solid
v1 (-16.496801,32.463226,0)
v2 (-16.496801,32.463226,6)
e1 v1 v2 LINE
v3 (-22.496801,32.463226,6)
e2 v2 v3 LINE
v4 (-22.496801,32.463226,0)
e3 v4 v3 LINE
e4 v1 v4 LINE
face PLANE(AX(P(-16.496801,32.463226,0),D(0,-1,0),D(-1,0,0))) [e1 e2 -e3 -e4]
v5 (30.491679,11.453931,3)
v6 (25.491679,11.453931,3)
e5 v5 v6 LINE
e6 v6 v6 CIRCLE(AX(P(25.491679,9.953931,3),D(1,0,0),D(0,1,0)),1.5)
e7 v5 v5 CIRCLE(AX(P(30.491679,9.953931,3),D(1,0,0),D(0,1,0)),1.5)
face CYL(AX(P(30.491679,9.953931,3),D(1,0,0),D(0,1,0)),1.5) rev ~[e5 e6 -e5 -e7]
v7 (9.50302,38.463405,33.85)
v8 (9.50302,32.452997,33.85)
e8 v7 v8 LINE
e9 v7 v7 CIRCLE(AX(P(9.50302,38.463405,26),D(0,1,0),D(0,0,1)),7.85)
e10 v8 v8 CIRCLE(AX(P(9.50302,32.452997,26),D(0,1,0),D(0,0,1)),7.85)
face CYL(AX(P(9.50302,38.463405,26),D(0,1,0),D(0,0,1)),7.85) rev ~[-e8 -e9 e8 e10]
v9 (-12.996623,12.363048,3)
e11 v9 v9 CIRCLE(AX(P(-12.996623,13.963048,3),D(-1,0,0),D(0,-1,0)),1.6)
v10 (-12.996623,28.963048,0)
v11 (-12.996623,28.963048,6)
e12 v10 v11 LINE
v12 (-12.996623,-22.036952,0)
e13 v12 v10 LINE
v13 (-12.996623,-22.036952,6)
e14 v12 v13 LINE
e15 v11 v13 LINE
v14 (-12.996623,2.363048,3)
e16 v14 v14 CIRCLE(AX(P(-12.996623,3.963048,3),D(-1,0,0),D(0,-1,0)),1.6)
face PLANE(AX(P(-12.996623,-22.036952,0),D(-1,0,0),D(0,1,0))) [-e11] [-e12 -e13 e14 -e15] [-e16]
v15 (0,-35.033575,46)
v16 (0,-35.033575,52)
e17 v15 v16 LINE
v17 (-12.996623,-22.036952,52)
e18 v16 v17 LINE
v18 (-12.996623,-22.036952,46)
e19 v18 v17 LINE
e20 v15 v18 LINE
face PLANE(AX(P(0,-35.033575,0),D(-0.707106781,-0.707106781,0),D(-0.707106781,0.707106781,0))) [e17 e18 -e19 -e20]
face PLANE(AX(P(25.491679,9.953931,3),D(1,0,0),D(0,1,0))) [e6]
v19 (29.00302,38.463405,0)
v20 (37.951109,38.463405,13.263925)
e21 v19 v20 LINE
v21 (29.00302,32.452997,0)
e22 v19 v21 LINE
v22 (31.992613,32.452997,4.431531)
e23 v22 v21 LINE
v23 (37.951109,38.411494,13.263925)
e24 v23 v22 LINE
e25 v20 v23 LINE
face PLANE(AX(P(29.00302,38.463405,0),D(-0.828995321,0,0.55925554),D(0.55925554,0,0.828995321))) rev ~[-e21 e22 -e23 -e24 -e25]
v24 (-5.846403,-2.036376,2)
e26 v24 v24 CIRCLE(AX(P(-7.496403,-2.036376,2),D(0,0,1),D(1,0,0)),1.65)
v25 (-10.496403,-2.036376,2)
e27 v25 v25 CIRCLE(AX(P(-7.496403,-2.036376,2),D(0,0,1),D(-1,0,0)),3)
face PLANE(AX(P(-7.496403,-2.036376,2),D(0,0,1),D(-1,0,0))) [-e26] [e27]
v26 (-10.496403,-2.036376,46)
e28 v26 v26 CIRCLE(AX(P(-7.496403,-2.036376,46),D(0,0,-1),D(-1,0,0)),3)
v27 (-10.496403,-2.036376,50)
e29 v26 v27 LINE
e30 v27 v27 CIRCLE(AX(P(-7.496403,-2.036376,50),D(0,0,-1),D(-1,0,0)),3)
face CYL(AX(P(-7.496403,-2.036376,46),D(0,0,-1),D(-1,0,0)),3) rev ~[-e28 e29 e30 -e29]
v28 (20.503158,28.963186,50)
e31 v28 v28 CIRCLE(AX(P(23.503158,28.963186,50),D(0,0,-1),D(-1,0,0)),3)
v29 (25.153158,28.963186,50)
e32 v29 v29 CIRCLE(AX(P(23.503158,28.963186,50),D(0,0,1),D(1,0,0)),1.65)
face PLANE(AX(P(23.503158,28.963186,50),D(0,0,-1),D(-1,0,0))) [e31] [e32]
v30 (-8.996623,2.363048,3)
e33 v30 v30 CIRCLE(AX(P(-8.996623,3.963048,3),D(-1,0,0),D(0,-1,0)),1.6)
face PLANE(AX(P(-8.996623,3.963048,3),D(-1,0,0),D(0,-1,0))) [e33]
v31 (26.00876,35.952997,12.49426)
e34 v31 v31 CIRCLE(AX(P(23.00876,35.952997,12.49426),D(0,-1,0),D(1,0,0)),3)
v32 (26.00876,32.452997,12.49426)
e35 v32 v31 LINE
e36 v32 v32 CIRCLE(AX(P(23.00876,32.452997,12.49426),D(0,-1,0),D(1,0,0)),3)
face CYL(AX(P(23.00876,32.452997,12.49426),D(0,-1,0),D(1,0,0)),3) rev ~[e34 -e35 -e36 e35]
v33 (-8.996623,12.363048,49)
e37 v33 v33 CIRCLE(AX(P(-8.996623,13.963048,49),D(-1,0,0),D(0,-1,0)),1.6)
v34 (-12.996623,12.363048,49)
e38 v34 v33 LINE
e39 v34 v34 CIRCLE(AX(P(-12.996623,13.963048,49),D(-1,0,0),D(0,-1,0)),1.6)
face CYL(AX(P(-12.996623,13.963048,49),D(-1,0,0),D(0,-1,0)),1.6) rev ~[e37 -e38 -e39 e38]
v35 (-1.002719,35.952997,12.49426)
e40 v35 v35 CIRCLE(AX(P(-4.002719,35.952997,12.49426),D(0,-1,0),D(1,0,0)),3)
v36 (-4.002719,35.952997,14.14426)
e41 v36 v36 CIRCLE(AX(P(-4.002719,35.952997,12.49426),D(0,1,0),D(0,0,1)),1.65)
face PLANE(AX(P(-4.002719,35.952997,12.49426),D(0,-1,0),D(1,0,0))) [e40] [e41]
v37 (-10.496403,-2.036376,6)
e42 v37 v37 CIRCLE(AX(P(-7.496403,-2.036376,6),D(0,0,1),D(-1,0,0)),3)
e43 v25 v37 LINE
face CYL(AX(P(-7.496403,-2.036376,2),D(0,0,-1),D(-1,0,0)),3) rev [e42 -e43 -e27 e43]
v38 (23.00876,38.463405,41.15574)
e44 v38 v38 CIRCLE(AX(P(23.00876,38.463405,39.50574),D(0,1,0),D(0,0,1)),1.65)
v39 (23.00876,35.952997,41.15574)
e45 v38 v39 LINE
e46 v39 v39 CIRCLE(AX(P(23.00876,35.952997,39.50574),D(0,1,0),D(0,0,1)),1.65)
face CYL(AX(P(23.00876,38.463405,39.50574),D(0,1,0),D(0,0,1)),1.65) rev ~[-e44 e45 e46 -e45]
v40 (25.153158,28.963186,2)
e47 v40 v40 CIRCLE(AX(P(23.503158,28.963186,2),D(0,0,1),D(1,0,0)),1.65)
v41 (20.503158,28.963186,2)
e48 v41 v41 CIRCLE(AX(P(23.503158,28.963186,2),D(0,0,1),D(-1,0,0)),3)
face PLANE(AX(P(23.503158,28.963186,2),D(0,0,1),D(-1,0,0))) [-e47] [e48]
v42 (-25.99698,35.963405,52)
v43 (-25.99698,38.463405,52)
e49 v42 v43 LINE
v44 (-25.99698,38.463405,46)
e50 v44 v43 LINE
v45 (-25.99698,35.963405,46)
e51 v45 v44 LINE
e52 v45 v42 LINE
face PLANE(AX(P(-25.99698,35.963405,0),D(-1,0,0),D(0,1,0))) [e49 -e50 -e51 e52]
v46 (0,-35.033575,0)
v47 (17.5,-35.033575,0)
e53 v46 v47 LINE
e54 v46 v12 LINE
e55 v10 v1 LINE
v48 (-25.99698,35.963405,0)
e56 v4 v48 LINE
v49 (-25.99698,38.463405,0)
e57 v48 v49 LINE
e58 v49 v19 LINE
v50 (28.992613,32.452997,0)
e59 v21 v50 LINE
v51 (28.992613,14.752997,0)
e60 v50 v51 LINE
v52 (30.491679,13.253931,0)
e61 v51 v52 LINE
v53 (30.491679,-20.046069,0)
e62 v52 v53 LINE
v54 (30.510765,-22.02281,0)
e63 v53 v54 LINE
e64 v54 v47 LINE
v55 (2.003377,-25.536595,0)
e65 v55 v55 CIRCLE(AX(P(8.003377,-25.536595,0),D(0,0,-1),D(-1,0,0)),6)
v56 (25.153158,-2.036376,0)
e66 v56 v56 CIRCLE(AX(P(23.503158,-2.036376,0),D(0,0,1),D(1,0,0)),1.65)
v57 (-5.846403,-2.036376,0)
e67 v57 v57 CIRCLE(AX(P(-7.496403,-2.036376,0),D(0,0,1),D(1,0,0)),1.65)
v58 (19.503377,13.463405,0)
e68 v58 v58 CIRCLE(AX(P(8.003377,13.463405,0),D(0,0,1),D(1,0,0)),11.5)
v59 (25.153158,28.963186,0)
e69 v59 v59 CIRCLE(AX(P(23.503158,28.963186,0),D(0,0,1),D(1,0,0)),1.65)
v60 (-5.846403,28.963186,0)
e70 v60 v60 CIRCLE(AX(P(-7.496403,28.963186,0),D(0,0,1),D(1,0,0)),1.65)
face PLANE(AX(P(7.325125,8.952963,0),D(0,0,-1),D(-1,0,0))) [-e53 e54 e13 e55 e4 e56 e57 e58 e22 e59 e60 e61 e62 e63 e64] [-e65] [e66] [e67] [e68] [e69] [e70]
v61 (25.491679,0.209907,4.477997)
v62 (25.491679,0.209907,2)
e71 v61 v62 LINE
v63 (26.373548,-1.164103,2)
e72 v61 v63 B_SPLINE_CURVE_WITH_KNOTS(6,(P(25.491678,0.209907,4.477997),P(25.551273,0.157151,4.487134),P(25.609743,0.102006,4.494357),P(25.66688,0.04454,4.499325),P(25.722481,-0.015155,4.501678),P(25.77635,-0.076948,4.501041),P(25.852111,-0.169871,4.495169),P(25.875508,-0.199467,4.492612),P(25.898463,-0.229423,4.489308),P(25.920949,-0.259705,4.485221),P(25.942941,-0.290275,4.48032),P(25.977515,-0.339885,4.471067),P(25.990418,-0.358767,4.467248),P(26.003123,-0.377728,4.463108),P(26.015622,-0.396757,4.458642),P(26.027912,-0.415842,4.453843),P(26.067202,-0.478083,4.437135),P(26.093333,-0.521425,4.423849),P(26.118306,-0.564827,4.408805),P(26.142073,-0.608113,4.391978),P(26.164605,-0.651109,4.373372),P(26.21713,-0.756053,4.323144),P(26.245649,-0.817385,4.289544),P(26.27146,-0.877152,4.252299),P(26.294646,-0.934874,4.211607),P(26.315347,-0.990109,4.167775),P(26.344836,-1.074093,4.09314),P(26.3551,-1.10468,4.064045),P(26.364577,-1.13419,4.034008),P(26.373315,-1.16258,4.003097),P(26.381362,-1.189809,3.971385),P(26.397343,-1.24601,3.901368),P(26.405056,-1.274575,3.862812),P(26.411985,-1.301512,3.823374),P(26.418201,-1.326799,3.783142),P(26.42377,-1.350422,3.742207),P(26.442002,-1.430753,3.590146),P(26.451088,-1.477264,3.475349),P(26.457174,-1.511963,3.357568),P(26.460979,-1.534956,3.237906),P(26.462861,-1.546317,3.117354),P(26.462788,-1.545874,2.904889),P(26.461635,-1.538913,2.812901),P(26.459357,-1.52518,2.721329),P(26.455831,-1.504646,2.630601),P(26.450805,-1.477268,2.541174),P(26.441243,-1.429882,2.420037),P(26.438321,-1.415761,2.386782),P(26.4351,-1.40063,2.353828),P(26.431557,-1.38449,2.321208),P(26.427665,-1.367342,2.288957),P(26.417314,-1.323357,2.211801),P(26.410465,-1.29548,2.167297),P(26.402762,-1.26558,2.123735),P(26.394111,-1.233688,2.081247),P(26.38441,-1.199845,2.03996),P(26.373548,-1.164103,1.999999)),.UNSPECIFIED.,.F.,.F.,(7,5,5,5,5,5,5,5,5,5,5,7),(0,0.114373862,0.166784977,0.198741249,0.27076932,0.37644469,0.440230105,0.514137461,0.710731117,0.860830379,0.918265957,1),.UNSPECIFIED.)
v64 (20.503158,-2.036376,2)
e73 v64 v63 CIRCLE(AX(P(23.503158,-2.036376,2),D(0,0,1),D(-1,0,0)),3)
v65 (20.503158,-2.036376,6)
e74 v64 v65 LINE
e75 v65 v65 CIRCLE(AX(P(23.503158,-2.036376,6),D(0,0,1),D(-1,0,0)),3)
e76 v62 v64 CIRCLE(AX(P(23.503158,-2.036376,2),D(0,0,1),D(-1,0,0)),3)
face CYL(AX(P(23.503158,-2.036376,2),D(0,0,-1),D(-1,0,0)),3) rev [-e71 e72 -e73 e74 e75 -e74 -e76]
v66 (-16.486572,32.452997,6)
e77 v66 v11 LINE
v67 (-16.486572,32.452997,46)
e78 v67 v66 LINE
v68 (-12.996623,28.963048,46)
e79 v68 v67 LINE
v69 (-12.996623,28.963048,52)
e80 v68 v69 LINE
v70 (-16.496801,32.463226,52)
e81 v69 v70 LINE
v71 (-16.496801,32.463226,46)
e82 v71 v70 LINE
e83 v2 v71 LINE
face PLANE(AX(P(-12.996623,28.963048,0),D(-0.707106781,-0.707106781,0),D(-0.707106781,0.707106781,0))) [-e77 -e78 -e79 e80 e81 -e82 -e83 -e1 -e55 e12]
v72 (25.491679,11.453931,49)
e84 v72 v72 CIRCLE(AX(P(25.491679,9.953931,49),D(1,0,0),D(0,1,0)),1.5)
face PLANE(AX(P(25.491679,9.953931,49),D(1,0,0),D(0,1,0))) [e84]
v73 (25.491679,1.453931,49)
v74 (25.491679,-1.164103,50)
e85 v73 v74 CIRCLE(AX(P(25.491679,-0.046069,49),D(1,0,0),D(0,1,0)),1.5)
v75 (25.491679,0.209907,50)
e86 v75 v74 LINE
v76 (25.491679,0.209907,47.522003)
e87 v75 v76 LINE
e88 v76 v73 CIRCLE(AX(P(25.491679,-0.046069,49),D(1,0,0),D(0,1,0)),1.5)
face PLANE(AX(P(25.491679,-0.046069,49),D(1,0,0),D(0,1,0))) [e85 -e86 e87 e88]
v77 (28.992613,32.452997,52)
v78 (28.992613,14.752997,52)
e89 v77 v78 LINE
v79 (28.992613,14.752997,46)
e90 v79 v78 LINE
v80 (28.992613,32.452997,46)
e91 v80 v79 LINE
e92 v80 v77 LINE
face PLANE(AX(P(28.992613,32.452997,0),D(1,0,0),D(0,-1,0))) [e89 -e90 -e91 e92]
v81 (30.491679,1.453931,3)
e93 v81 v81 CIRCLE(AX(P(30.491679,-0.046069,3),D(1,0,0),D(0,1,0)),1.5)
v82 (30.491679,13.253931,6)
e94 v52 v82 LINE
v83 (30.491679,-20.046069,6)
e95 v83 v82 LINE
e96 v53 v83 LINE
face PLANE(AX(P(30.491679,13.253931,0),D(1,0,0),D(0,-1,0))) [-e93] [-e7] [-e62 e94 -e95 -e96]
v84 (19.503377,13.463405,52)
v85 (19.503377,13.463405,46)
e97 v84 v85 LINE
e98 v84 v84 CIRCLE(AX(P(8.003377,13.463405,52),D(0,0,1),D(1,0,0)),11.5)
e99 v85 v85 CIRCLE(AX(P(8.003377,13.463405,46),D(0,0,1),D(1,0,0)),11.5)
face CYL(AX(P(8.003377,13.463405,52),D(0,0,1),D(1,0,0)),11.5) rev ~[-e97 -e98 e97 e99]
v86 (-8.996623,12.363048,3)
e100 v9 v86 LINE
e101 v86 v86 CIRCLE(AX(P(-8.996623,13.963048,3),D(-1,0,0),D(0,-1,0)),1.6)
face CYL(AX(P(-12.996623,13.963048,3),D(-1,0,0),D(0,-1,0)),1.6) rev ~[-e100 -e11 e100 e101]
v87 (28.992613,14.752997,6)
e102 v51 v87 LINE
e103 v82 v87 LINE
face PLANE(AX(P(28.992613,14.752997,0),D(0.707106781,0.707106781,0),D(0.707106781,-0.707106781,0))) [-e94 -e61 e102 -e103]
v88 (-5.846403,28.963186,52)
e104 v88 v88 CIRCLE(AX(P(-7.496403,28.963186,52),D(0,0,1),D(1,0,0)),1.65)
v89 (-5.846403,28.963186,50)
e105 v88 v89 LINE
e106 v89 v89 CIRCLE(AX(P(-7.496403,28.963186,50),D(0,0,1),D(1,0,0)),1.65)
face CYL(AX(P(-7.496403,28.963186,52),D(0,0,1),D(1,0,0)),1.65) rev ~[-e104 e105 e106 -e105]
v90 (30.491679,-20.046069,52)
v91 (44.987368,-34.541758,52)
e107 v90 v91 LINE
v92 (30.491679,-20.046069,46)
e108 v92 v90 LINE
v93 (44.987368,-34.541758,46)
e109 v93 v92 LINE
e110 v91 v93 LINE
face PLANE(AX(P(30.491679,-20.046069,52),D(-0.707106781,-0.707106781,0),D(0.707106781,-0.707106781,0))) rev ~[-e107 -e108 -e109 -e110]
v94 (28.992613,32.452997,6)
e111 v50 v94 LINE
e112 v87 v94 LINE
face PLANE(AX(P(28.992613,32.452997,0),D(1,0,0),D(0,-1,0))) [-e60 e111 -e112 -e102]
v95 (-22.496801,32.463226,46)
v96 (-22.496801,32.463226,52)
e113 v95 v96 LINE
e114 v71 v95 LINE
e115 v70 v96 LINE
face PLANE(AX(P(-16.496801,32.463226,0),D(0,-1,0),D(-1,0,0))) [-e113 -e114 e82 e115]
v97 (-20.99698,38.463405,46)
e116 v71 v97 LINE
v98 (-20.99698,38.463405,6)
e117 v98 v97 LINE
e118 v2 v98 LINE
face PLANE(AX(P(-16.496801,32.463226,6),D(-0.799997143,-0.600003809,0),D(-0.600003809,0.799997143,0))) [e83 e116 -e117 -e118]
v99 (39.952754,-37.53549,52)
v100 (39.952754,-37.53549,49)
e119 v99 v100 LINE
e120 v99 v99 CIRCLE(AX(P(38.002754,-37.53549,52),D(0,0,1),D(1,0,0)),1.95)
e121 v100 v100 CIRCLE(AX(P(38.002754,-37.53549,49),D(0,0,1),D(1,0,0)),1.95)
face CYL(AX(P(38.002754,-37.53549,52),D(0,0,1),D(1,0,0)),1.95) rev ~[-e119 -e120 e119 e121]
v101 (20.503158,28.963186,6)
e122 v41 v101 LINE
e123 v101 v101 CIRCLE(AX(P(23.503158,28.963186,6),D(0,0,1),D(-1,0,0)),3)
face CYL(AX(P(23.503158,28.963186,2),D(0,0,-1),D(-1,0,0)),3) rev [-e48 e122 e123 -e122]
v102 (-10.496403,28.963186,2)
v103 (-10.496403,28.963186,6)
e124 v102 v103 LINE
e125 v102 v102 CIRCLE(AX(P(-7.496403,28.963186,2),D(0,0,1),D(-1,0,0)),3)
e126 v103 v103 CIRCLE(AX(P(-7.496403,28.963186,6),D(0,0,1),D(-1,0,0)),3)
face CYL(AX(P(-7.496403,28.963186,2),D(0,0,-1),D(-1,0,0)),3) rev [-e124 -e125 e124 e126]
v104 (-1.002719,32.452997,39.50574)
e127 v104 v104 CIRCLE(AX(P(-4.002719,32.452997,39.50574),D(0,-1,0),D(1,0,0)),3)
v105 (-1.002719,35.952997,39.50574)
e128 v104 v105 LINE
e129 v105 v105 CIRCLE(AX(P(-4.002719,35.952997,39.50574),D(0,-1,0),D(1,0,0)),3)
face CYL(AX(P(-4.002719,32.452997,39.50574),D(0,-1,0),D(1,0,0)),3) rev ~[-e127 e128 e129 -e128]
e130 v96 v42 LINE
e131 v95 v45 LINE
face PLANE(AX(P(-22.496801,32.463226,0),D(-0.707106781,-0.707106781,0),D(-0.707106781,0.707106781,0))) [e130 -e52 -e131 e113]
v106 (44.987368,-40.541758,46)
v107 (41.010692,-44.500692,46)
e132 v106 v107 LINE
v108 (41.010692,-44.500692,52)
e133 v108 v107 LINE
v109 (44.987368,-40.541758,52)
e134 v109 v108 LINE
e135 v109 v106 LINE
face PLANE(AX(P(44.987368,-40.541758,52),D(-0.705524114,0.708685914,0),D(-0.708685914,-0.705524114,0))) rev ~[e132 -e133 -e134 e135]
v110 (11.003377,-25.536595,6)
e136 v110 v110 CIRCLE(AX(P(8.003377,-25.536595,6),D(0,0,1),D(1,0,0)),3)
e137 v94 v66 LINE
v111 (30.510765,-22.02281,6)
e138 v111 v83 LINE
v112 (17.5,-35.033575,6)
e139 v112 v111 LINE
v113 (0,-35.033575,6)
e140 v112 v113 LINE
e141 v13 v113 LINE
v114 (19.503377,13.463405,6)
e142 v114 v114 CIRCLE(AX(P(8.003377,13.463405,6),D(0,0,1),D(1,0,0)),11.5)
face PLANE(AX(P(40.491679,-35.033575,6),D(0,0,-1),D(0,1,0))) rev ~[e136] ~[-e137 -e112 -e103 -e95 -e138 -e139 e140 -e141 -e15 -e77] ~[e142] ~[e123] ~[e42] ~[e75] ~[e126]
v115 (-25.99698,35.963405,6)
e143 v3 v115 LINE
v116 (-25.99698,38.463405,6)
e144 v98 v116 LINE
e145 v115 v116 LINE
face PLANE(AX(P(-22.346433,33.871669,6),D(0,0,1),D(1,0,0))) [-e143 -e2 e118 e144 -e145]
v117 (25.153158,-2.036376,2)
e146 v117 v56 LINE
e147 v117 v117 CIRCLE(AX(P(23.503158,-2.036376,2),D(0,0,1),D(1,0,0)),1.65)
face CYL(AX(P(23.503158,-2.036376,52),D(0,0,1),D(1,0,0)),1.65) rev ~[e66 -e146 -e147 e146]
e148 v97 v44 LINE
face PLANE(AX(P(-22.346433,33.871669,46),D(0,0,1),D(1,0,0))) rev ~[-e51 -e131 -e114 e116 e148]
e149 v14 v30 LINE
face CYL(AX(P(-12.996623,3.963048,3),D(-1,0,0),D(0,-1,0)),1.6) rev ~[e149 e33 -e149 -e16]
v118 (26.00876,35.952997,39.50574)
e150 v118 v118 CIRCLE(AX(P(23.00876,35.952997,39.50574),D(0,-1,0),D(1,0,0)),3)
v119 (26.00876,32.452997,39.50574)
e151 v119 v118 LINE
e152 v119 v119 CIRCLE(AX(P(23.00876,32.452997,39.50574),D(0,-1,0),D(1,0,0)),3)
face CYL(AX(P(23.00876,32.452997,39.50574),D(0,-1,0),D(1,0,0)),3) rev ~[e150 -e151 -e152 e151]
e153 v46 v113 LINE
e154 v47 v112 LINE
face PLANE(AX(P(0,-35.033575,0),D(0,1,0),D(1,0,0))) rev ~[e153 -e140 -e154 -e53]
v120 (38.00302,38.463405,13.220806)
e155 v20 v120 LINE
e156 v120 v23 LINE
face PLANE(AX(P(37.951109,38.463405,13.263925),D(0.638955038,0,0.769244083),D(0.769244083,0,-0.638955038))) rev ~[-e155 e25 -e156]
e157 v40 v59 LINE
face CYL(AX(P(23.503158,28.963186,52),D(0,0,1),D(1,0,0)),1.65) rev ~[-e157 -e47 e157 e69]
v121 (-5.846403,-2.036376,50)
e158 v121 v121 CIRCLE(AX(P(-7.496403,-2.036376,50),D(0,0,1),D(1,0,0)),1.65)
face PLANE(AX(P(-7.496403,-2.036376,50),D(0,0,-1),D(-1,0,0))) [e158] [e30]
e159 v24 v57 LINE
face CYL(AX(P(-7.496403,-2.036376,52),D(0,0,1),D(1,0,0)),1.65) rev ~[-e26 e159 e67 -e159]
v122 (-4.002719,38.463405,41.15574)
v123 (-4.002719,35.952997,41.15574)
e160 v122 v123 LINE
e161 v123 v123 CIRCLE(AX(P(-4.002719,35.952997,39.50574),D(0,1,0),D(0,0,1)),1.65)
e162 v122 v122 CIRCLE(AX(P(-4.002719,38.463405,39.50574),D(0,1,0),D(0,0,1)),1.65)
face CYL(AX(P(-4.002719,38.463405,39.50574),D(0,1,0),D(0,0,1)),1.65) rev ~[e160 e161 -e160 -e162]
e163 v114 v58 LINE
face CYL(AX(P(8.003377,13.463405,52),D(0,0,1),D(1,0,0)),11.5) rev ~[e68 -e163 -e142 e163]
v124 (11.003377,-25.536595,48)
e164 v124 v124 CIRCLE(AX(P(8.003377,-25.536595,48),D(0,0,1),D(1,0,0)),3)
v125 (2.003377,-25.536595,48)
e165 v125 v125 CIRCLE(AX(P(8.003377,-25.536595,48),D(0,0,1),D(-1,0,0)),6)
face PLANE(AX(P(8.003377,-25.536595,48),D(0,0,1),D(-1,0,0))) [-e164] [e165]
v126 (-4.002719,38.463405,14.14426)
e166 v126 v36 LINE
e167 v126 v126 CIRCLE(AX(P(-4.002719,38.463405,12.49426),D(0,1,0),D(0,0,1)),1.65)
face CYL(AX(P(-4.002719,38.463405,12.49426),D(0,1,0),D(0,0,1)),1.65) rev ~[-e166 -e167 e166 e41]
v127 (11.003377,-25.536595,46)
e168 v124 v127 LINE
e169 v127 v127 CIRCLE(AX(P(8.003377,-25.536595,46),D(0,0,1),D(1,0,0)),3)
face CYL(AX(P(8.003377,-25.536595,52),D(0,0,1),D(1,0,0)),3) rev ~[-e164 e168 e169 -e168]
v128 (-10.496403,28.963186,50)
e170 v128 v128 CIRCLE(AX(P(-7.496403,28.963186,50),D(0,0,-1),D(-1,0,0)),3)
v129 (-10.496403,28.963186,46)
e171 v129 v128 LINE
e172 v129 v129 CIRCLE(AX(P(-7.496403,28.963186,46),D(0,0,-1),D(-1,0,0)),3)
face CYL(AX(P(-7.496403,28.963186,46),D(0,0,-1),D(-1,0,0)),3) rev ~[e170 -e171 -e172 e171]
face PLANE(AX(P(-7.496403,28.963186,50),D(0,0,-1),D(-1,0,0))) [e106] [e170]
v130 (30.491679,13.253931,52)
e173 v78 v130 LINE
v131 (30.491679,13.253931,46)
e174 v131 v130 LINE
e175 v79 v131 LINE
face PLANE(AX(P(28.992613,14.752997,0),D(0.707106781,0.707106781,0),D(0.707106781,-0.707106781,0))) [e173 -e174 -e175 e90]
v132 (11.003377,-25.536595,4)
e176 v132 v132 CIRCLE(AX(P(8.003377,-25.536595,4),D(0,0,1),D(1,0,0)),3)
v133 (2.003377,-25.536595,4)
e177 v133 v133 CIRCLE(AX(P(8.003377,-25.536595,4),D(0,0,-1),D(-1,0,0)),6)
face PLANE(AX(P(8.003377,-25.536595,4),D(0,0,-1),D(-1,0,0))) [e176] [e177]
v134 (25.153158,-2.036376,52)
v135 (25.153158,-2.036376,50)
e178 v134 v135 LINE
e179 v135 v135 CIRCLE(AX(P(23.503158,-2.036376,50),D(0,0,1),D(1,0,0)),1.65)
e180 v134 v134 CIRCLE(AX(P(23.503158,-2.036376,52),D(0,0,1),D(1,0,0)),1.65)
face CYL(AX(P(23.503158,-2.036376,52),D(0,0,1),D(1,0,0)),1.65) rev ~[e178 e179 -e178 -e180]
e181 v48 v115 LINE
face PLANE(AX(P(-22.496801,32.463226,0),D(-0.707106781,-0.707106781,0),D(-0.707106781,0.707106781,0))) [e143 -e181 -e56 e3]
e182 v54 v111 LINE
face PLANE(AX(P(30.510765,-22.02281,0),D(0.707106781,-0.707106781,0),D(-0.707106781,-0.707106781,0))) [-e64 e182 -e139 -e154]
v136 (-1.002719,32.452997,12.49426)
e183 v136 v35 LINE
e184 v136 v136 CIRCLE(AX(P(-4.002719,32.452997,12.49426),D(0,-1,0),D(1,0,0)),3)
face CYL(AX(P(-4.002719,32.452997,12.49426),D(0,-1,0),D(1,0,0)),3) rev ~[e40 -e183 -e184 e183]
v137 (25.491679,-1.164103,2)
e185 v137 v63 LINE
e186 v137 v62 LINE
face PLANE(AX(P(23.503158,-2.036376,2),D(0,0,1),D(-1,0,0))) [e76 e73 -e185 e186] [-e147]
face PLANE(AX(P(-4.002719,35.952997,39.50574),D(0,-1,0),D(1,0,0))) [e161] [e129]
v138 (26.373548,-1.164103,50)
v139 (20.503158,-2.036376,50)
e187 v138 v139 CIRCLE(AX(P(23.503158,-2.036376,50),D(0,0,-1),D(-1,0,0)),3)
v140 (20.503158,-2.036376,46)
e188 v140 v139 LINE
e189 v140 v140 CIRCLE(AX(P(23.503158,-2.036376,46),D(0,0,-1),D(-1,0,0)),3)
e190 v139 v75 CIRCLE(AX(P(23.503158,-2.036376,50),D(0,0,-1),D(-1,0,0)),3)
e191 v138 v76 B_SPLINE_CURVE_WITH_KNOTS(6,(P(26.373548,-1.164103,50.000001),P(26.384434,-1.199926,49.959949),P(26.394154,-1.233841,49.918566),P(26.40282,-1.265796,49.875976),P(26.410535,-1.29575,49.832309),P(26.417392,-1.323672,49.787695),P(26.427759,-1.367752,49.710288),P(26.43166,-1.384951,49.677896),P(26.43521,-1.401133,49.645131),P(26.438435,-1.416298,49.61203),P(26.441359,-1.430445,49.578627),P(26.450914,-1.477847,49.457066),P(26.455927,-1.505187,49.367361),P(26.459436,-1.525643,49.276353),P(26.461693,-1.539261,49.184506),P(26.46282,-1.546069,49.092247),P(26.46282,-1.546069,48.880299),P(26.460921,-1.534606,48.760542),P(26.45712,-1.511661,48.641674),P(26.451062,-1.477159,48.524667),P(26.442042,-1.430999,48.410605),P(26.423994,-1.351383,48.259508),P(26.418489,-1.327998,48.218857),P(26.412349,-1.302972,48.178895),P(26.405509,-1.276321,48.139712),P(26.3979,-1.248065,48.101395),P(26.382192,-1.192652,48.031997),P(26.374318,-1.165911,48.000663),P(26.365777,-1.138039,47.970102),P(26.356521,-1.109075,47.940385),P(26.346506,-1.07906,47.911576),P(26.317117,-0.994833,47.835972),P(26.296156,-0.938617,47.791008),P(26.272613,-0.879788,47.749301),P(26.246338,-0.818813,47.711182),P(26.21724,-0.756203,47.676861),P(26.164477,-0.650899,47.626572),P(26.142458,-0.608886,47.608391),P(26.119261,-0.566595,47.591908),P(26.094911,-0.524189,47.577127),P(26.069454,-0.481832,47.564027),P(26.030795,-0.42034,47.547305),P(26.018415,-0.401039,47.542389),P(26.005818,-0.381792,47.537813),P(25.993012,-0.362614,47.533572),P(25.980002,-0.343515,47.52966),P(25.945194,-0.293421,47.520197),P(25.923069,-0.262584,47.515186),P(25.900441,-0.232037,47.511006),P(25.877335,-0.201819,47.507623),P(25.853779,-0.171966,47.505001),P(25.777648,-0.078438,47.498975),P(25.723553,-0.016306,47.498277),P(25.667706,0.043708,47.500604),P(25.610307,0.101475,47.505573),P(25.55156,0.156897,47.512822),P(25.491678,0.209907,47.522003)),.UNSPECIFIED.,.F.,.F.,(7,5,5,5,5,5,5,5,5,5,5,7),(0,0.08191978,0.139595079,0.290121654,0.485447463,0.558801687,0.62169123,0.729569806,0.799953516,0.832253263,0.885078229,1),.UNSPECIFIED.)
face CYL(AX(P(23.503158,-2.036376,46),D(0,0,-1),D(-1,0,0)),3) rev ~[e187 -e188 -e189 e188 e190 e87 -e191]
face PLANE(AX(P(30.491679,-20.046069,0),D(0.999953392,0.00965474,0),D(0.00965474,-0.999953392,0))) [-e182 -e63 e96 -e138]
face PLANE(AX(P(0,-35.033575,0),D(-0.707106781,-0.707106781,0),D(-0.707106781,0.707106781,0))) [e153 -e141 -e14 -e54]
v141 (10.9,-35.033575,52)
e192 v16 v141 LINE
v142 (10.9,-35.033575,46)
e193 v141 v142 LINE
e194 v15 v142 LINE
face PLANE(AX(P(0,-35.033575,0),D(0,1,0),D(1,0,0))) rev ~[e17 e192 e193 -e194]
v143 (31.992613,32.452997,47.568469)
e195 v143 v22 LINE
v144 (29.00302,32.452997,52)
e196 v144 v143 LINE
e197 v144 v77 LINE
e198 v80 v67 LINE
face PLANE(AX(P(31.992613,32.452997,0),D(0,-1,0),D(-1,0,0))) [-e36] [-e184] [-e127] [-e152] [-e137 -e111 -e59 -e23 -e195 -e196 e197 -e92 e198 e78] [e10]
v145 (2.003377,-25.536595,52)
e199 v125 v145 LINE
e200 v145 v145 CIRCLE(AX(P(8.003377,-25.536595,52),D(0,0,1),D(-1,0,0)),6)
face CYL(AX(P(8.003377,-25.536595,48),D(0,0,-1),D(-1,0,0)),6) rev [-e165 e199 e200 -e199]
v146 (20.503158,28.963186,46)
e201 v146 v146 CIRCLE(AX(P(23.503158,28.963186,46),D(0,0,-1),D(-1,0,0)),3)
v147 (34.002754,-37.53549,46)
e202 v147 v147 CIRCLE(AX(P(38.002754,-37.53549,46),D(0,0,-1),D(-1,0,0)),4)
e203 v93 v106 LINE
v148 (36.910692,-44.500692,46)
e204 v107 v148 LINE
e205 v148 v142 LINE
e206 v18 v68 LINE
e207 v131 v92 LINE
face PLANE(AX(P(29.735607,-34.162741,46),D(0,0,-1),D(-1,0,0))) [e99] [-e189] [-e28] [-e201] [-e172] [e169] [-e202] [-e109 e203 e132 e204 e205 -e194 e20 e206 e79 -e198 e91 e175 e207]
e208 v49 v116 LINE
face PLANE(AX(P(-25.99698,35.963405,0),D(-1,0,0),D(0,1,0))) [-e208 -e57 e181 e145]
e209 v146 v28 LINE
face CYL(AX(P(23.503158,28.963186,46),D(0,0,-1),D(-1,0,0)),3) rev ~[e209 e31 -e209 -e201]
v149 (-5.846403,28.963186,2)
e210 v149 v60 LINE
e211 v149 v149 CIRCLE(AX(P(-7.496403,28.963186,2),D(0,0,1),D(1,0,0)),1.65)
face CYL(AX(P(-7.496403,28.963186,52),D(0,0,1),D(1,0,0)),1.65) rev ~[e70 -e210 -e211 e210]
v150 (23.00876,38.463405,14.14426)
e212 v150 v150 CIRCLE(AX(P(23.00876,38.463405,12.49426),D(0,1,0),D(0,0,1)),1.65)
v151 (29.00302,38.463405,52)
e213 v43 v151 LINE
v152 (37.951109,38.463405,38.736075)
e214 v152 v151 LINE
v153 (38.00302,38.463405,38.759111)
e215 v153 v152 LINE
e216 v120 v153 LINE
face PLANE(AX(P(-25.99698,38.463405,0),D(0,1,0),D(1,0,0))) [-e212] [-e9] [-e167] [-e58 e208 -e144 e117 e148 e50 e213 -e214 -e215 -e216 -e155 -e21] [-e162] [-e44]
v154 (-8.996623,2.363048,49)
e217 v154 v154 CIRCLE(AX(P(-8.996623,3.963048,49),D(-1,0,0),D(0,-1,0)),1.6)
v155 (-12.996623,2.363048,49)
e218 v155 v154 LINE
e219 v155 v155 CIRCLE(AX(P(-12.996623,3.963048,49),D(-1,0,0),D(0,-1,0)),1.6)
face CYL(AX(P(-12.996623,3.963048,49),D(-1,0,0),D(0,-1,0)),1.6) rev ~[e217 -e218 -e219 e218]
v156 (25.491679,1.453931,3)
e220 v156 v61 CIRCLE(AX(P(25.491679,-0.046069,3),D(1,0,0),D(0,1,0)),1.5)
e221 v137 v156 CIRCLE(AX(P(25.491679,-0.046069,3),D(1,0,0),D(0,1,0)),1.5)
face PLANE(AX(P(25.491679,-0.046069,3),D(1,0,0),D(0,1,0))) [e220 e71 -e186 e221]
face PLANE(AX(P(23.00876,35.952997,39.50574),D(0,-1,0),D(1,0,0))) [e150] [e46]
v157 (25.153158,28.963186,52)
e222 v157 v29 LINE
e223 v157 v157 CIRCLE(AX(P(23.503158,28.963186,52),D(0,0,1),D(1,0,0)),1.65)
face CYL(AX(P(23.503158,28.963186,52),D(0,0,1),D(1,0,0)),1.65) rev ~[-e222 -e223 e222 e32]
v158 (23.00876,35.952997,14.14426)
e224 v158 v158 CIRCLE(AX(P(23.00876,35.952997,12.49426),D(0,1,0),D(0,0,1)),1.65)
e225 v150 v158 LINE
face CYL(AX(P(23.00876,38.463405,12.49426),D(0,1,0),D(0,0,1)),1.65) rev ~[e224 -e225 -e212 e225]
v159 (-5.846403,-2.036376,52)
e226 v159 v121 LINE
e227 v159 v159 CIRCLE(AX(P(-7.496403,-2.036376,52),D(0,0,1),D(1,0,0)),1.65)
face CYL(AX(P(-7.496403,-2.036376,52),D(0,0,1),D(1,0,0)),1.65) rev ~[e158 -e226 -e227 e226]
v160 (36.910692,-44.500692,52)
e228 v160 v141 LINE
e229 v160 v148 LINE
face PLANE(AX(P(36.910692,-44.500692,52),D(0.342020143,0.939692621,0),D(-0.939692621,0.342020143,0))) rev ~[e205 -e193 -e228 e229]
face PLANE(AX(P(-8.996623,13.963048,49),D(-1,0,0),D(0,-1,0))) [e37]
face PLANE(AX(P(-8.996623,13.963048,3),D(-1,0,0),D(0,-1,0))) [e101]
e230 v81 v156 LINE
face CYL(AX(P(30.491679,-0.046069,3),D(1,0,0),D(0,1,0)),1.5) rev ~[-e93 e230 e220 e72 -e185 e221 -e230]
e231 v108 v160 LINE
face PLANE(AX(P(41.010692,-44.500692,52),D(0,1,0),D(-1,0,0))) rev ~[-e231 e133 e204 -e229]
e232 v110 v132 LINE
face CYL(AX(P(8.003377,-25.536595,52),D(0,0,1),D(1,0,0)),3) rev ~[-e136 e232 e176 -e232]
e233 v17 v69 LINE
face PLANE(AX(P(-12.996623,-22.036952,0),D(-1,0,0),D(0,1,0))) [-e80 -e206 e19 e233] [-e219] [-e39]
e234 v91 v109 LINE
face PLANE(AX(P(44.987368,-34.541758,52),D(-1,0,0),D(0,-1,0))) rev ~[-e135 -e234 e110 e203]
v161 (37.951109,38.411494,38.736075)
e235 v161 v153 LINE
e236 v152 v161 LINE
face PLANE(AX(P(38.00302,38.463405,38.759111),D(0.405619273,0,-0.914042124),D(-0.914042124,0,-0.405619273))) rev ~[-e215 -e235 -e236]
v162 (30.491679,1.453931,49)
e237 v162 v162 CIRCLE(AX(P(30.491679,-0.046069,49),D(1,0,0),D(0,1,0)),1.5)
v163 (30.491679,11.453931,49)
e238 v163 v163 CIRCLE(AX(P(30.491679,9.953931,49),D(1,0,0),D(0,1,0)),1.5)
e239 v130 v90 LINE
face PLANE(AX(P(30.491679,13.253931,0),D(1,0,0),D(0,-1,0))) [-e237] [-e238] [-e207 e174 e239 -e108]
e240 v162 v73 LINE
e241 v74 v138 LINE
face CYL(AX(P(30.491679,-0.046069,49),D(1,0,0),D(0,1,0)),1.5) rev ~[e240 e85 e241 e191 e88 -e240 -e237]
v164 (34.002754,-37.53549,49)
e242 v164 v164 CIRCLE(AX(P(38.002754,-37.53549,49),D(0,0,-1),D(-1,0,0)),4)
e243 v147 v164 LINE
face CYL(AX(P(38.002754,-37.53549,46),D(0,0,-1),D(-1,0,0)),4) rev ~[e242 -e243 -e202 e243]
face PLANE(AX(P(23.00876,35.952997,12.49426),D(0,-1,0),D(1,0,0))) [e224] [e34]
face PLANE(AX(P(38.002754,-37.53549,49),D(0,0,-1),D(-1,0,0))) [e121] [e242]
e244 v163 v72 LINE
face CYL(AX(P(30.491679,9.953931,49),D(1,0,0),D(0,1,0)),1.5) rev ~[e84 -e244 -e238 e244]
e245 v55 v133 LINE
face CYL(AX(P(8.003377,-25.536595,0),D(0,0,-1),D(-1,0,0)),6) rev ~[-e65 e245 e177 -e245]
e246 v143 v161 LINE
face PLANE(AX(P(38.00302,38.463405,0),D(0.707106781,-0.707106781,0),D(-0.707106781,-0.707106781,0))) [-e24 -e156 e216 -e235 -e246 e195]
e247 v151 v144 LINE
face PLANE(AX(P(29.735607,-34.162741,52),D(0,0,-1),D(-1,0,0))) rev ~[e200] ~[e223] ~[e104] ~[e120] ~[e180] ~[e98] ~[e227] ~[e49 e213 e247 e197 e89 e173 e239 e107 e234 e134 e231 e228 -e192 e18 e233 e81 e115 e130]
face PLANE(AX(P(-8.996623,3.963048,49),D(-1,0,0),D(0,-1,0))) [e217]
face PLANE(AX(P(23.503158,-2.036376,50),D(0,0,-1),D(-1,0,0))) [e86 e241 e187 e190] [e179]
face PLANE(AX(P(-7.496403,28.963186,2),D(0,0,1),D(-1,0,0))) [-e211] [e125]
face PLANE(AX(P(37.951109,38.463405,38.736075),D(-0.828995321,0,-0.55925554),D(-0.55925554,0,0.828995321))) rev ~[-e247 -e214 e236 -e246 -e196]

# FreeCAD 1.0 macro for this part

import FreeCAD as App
import Part
import Sketcher
Q = App.Units.Quantity


def add_polygon(sketch, points):
    """Adds a closed chain of lines whose ends are joined by coincident constraints."""
    first, n = sketch.GeometryCount, len(points)
    for a, b in zip(points, points[1:] + points[:1]):
        sketch.addGeometry(Part.LineSegment(App.Vector(*a, 0), App.Vector(*b, 0)), False)
    for i in range(n):
        sketch.addConstraint(Sketcher.Constraint("Coincident", first + i, 2, first + (i + 1) % n, 1))

doc = App.newDocument("Part")
body = doc.addObject("PartDesign::Body", "Body")

# Sketch on XY plane
sketch1 = body.newObject("Sketcher::SketchObject", "Sketch")
sketch1.AttachmentSupport = (doc.getObject("XY_Plane"), [""])
sketch1.MapMode = "FlatFace"
add_polygon(sketch1, [(30.510765, -22.02281), (30.491679, -20.046069), (30.491679, 13.253931), (28.992613, 14.752997), (28.992613, 32.452997), (31.992613, 32.452997), (38.00302, 38.463405), (-25.99698, 38.463405), (-25.99698, 35.963405), (-22.496801, 32.463226), (-16.496801, 32.463226), (-12.996623, 28.963048), (-12.996623, -22.036952), (0, -35.033575), (17.5, -35.033575)])  # lines 0-14
sketch1.addConstraint([
    Sketcher.Constraint("Vertical", 1),
    Sketcher.Constraint("Vertical", 3),
    Sketcher.Constraint("Horizontal", 4),
    Sketcher.Constraint("Horizontal", 6),
    Sketcher.Constraint("Vertical", 7),
    Sketcher.Constraint("Horizontal", 9),
    Sketcher.Constraint("Vertical", 11),
    Sketcher.Constraint("Horizontal", 13),
    Sketcher.Constraint("PointOnObject", 12, 2, -2),
    Sketcher.Constraint("Perpendicular", 2, 5),
    Sketcher.Constraint("Perpendicular", 5, 8),
    Sketcher.Constraint("Parallel", 8, 10),
    Sketcher.Constraint("Parallel", 10, 12),
    Sketcher.Constraint("Perpendicular", 12, 14),
    Sketcher.Constraint("Equal", 8, 10),
    Sketcher.Constraint("DistanceX", 4, 1, 4, 2, Q("3 mm")),
    Sketcher.Constraint("DistanceX", 6, 2, 6, 1, Q("64 mm")),
    Sketcher.Constraint("DistanceX", 9, 1, 9, 2, Q("6 mm")),
    Sketcher.Constraint("DistanceY", 11, 2, 11, 1, Q("51 mm")),
    Sketcher.Constraint("Angle", 2, Q("135 deg")),
    Sketcher.Constraint("DistanceX", 13, 1, 13, 2, Q("17.5 mm")),
    Sketcher.Constraint("DistanceY", 1, 1, 1, 2, Q("33.3 mm")),
    Sketcher.Constraint("DistanceY", 3, 1, 3, 2, Q("17.7 mm")),
    Sketcher.Constraint("DistanceY", 7, 2, 7, 1, Q("2.5 mm")),
    Sketcher.Constraint("Distance", 5, Q("8.5 mm")),
    Sketcher.Constraint("Distance", 14, Q("18.4 mm")),
    Sketcher.Constraint("Distance", 2, Q("2.12 mm")),
    Sketcher.Constraint("Distance", 8, Q("4.95 mm")),
    Sketcher.Constraint("Distance", 12, Q("18.38 mm")),
    Sketcher.Constraint("DistanceY", 0, 2, -1, 1, Q("20.046069 mm")),
])
pad1 = body.newObject("PartDesign::Pad", "Pad")
pad1.Profile = sketch1
pad1.Length = 52

# Sketch on XY plane
sketch2 = body.newObject("Sketcher::SketchObject", "Sketch001")
sketch2.AttachmentSupport = (doc.getObject("XY_Plane"), [""])
sketch2.MapMode = "FlatFace"
sketch2.AttachmentOffset = App.Placement(App.Vector(0, 0, 52), App.Rotation())
add_polygon(sketch2, [(44.987368, -34.541758), (30.491679, -20.046069), (30.510765, -22.02281), (17.5, -35.033575), (10.9, -35.033575), (36.910692, -44.500692), (41.010692, -44.500692), (44.987368, -40.541758)])  # lines 0-7
sketch2.addConstraint([
    Sketcher.Constraint("Horizontal", 3),
    Sketcher.Constraint("Horizontal", 5),
    Sketcher.Constraint("Vertical", 7),
    Sketcher.Constraint("Perpendicular", 0, 2),
    Sketcher.Constraint("DistanceY", 7, 1, 7, 2, Q("6 mm")),
    Sketcher.Constraint("Angle", 0, Q("135 deg")),
    Sketcher.Constraint("Angle", 4, Q("-20 deg")),
    Sketcher.Constraint("DistanceX", 3, 2, 3, 1, Q("6.6 mm")),
    Sketcher.Constraint("DistanceX", 5, 1, 5, 2, Q("4.1 mm")),
    Sketcher.Constraint("Distance", 0, Q("20.5 mm")),
    Sketcher.Constraint("Distance", 2, Q("18.4 mm")),
    Sketcher.Constraint("DistanceX", -1, 1, 2, 2, Q("17.5 mm")),
    Sketcher.Constraint("Distance", 4, Q("27.68 mm")),
    Sketcher.Constraint("Distance", 6, Q("5.611338 mm")),
    Sketcher.Constraint("DistanceX", -1, 1, 0, 2, Q("30.491679 mm")),
    Sketcher.Constraint("DistanceY", 0, 2, -1, 1, Q("20.046069 mm")),
])
pad2 = body.newObject("PartDesign::Pad", "Pad001")
pad2.Profile = sketch2
pad2.Length = 6
pad2.Reversed = True

# Sketch on YZ plane
sketch3 = body.newObject("Sketcher::SketchObject", "Sketch002")
sketch3.AttachmentSupport = (doc.getObject("YZ_Plane"), [""])
sketch3.MapMode = "FlatFace"
sketch3.AttachmentOffset = App.Placement(App.Vector(0, 0, 40.491679), App.Rotation())
add_polygon(sketch3, [(32.452997, 46), (-49.83921, 46), (-35.033575, 6), (32.452997, 6)])  # lines 0-3
sketch3.addConstraint([
    Sketcher.Constraint("Horizontal", 0),
    Sketcher.Constraint("Horizontal", 2),
    Sketcher.Constraint("Vertical", 3),
    Sketcher.Constraint("DistanceY", 3, 1, 3, 2, Q("40 mm")),
    Sketcher.Constraint("DistanceY", -1, 1, 0, 2, Q("46 mm")),
    Sketcher.Constraint("Distance", 1, Q("42.652161 mm")),
    Sketcher.Constraint("DistanceX", 0, 2, 0, 1, Q("82.292207 mm")),
    Sketcher.Constraint("DistanceX", 0, 2, -1, 1, Q("49.83921 mm")),
])
pocket1 = body.newObject("PartDesign::Pocket", "Pocket")
pocket1.Profile = sketch3
pocket1.Length = 76

# Sketch on XZ plane
sketch4 = body.newObject("Sketcher::SketchObject", "Sketch003")
sketch4.AttachmentSupport = (doc.getObject("XZ_Plane"), [""])
sketch4.MapMode = "FlatFace"
sketch4.AttachmentOffset = App.Placement(App.Vector(0, 0, -38.463405), App.Rotation())
add_polygon(sketch4, [(38.00302, 0), (29.00302, 0), (37.951109, 13.263925), (38.00302, 13.220806)])  # lines 0-3
add_polygon(sketch4, [(37.951109, 38.736075), (29.00302, 52), (38.00302, 52), (38.00302, 38.759111)])  # lines 4-7
add_polygon(sketch4, [(-25.99698, 12), (-25.99698, 40), (-20.99698, 40), (-20.99698, 12)])  # lines 8-11
sketch4.addGeometry(Part.Circle(App.Vector(9.50302, 26, 0), App.Vector(0, 0, 1), 7.85), False)  # 12
sketch4.addGeometry(Part.Circle(App.Vector(-4.002719, 12.49426, 0), App.Vector(0, 0, 1), 1.65), False)  # 13
sketch4.addGeometry(Part.Circle(App.Vector(23.00876, 12.49426, 0), App.Vector(0, 0, 1), 1.65), False)  # 14
sketch4.addGeometry(Part.Circle(App.Vector(23.00876, 39.50574, 0), App.Vector(0, 0, 1), 1.65), False)  # 15
sketch4.addGeometry(Part.Circle(App.Vector(-4.002719, 39.50574, 0), App.Vector(0, 0, 1), 1.65), False)  # 16
sketch4.addConstraint([
    Sketcher.Constraint("Horizontal", 0),
    Sketcher.Constraint("Vertical", 3),
    Sketcher.Constraint("Horizontal", 5),
    Sketcher.Constraint("Vertical", 6),
    Sketcher.Constraint("Vertical", 8),
    Sketcher.Constraint("Horizontal", 9),
    Sketcher.Constraint("Vertical", 10),
    Sketcher.Constraint("Horizontal", 11),
    Sketcher.Constraint("Equal", 13, 14),
    Sketcher.Constraint("Equal", 14, 15),
    Sketcher.Constraint("Equal", 15, 16),
    Sketcher.Constraint("PointOnObject", 0, 2, -1),
    Sketcher.Constraint("Horizontal", 13, 3, 14, 3),
    Sketcher.Constraint("Horizontal", 15, 3, 16, 3),
    Sketcher.Constraint("Vertical", 14, 3, 15, 3),
    Sketcher.Constraint("Vertical", 13, 3, 16, 3),
    Sketcher.Constraint("Vertical", 0, 2, 4, 2),
    Sketcher.Constraint("Vertical", 3, 2, 5, 2),
    Sketcher.Constraint("Vertical", 1, 2, 7, 2),
    Sketcher.Constraint("Equal", 1, 4),
    Sketcher.Constraint("Diameter", 12, Q("15.7 mm")),
    Sketcher.Constraint("Diameter", 13, Q("3.3 mm")),
    Sketcher.Constraint("DistanceX", 0, 2, 0, 1, Q("9 mm")),
    Sketcher.Constraint("DistanceX", 9, 1, 9, 2, Q("5 mm")),
    Sketcher.Constraint("DistanceY", 8, 1, 8, 2, Q("28 mm")),
    Sketcher.Constraint("Distance", 1, Q("16 mm")),
    Sketcher.Constraint("DistanceY", -1, 1, 12, 3, Q("26 mm")),
    Sketcher.Constraint("DistanceY", -1, 1, 4, 2, Q("52 mm")),
    Sketcher.Constraint("DistanceY", -1, 1, 8, 2, Q("40 mm")),
    Sketcher.Constraint("DistanceX", 12, 3, 0, 2, Q("19.5 mm")),
    Sketcher.Constraint("DistanceX", 8, 2, 12, 3, Q("35.5 mm")),
    Sketcher.Constraint("DistanceY", 6, 2, 6, 1, Q("13.240889 mm")),
    Sketcher.Constraint("DistanceY", 3, 2, 3, 1, Q("13.220806 mm")),
    Sketcher.Constraint("DistanceX", -1, 1, 12, 3, Q("9.50302 mm")),
    Sketcher.Constraint("DistanceX", 13, 3, -1, 1, Q("4.002719 mm")),
    Sketcher.Constraint("DistanceY", -1, 1, 13, 3, Q("12.49426 mm")),
    Sketcher.Constraint("DistanceX", -1, 1, 14, 3, Q("23.00876 mm")),
    Sketcher.Constraint("DistanceY", -1, 1, 15, 3, Q("39.50574 mm")),
    Sketcher.Constraint("DistanceX", -1, 1, 1, 2, Q("37.951109 mm")),
])
pocket2 = body.newObject("PartDesign::Pocket", "Pocket001")
pocket2.Profile = sketch4
pocket2.Length = 21
pocket2.Reversed = True

# Sketch on XY plane
sketch5 = body.newObject("Sketcher::SketchObject", "Sketch004")
sketch5.AttachmentSupport = (doc.getObject("XY_Plane"), [""])
sketch5.MapMode = "FlatFace"
sketch5.AttachmentOffset = App.Placement(App.Vector(0, 0, 52), App.Rotation())
sketch5.addGeometry([
    Part.Circle(App.Vector(8.003377, 13.463405, 0), App.Vector(0, 0, 1), 11.5),  # 0
    Part.Circle(App.Vector(-7.496403, -2.036376, 0), App.Vector(0, 0, 1), 1.65),  # 1
    Part.Circle(App.Vector(-7.496403, 28.963186, 0), App.Vector(0, 0, 1), 1.65),  # 2
    Part.Circle(App.Vector(23.503158, 28.963186, 0), App.Vector(0, 0, 1), 1.65),  # 3
    Part.Circle(App.Vector(23.503158, -2.036376, 0), App.Vector(0, 0, 1), 1.65),  # 4
    Part.Circle(App.Vector(8.003377, -25.536595, 0), App.Vector(0, 0, 1), 3),  # 5
    Part.Circle(App.Vector(38.002754, -37.53549, 0), App.Vector(0, 0, 1), 1.95),  # 6
], False)
sketch5.addConstraint([
    Sketcher.Constraint("Equal", 1, 2),
    Sketcher.Constraint("Equal", 2, 3),
    Sketcher.Constraint("Equal", 3, 4),
    Sketcher.Constraint("Horizontal", 2, 3, 3, 3),
    Sketcher.Constraint("Horizontal", 1, 3, 4, 3),
    Sketcher.Constraint("Vertical", 1, 3, 2, 3),
    Sketcher.Constraint("Vertical", 3, 3, 4, 3),
    Sketcher.Constraint("Vertical", 0, 3, 5, 3),
    Sketcher.Constraint("Diameter", 0, Q("23 mm")),
    Sketcher.Constraint("Diameter", 5, Q("6 mm")),
    Sketcher.Constraint("Diameter", 1, Q("3.3 mm")),
    Sketcher.Constraint("Diameter", 6, Q("3.9 mm")),
    Sketcher.Constraint("DistanceY", 5, 3, 0, 3, Q("39 mm")),
    Sketcher.Constraint("DistanceX", -1, 1, 3, 3, Q("23.503158 mm")),
    Sketcher.Constraint("DistanceY", 6, 3, -1, 1, Q("37.53549 mm")),
    Sketcher.Constraint("DistanceX", 1, 3, 0, 3, Q("15.499781 mm")),
    Sketcher.Constraint("DistanceY", 1, 3, 0, 3, Q("15.499781 mm")),
    Sketcher.Constraint("DistanceY", 0, 3, 2, 3, Q("15.499781 mm")),
    Sketcher.Constraint("DistanceX", 0, 3, 3, 3, Q("15.499781 mm")),
    Sketcher.Constraint("DistanceY", -1, 1, 0, 3, Q("13.463405 mm")),
    Sketcher.Constraint("DistanceX", -1, 1, 6, 3, Q("38.002754 mm")),
])
pocket3 = body.newObject("PartDesign::Pocket", "Pocket002")
pocket3.Profile = sketch5
pocket3.Length = 62

# Sketch on XZ plane
sketch6 = body.newObject("Sketcher::SketchObject", "Sketch005")
sketch6.AttachmentSupport = (doc.getObject("XZ_Plane"), [""])
sketch6.MapMode = "FlatFace"
sketch6.AttachmentOffset = App.Placement(App.Vector(0, 0, -32.452997), App.Rotation())
sketch6.addGeometry([
    Part.Circle(App.Vector(-4.002719, 39.50574, 0), App.Vector(0, 0, 1), 3),
    Part.Circle(App.Vector(23.00876, 39.50574, 0), App.Vector(0, 0, 1), 3),
    Part.Circle(App.Vector(23.00876, 12.49426, 0), App.Vector(0, 0, 1), 3),
    Part.Circle(App.Vector(-4.002719, 12.49426, 0), App.Vector(0, 0, 1), 3),
], False)
sketch6.addConstraint([
    Sketcher.Constraint("Equal", 0, 1),
    Sketcher.Constraint("Equal", 1, 2),
    Sketcher.Constraint("Equal", 2, 3),
    Sketcher.Constraint("Horizontal", 0, 3, 1, 3),
    Sketcher.Constraint("Horizontal", 2, 3, 3, 3),
    Sketcher.Constraint("Vertical", 1, 3, 2, 3),
    Sketcher.Constraint("Vertical", 0, 3, 3, 3),
    Sketcher.Constraint("Diameter", 0, Q("6 mm")),
    Sketcher.Constraint("DistanceX", 0, 3, -1, 1, Q("4.002719 mm")),
    Sketcher.Constraint("DistanceY", -1, 1, 0, 3, Q("39.50574 mm")),
    Sketcher.Constraint("DistanceX", -1, 1, 1, 3, Q("23.00876 mm")),
    Sketcher.Constraint("DistanceY", -1, 1, 2, 3, Q("12.49426 mm")),
])
pocket4 = body.newObject("PartDesign::Pocket", "Pocket003")
pocket4.Profile = sketch6
pocket4.Length = 3.5

# Sketch on XY plane
sketch7 = body.newObject("Sketcher::SketchObject", "Sketch006")
sketch7.AttachmentSupport = (doc.getObject("XY_Plane"), [""])
sketch7.MapMode = "FlatFace"
sketch7.addGeometry(Part.Circle(App.Vector(8.003377, -25.536595, 0), App.Vector(0, 0, 1), 6), False)
sketch7.addConstraint([
    Sketcher.Constraint("Diameter", 0, Q("12 mm")),
    Sketcher.Constraint("DistanceX", -1, 1, 0, 3, Q("8.003377 mm")),
    Sketcher.Constraint("DistanceY", 0, 3, -1, 1, Q("25.536595 mm")),
])
pocket5 = body.newObject("PartDesign::Pocket", "Pocket004")
pocket5.Profile = sketch7
pocket5.Length = 4
pocket5.Reversed = True

# Sketch on XY plane
sketch8 = body.newObject("Sketcher::SketchObject", "Sketch007")
sketch8.AttachmentSupport = (doc.getObject("XY_Plane"), [""])
sketch8.MapMode = "FlatFace"
sketch8.AttachmentOffset = App.Placement(App.Vector(0, 0, 48), App.Rotation())
sketch8.addGeometry(Part.Circle(App.Vector(8.003377, -25.536595, 0), App.Vector(0, 0, 1), 6), False)
sketch8.addConstraint([
    Sketcher.Constraint("Diameter", 0, Q("12 mm")),
    Sketcher.Constraint("DistanceX", -1, 1, 0, 3, Q("8.003377 mm")),
    Sketcher.Constraint("DistanceY", 0, 3, -1, 1, Q("25.536595 mm")),
])
pocket6 = body.newObject("PartDesign::Pocket", "Pocket005")
pocket6.Profile = sketch8
pocket6.Length = 4
pocket6.Reversed = True

# Sketch on XY plane
sketch9 = body.newObject("Sketcher::SketchObject", "Sketch008")
sketch9.AttachmentSupport = (doc.getObject("XY_Plane"), [""])
sketch9.MapMode = "FlatFace"
sketch9.AttachmentOffset = App.Placement(App.Vector(0, 0, 46), App.Rotation())
sketch9.addGeometry([
    Part.Circle(App.Vector(23.503158, 28.963186, 0), App.Vector(0, 0, 1), 3),
    Part.Circle(App.Vector(-7.496403, 28.963186, 0), App.Vector(0, 0, 1), 3),
    Part.Circle(App.Vector(-7.496403, -2.036376, 0), App.Vector(0, 0, 1), 3),
    Part.Circle(App.Vector(23.503158, -2.036376, 0), App.Vector(0, 0, 1), 3),
], False)
sketch9.addConstraint([
    Sketcher.Constraint("Equal", 0, 1),
    Sketcher.Constraint("Equal", 1, 2),
    Sketcher.Constraint("Equal", 2, 3),
    Sketcher.Constraint("Horizontal", 0, 3, 1, 3),
    Sketcher.Constraint("Horizontal", 2, 3, 3, 3),
    Sketcher.Constraint("Vertical", 1, 3, 2, 3),
    Sketcher.Constraint("Vertical", 0, 3, 3, 3),
    Sketcher.Constraint("Diameter", 0, Q("6 mm")),
    Sketcher.Constraint("DistanceX", -1, 1, 0, 3, Q("23.503158 mm")),
    Sketcher.Constraint("DistanceX", 1, 3, 0, 3, Q("30.999561 mm")),
    Sketcher.Constraint("DistanceY", 2, 3, 1, 3, Q("30.999561 mm")),
    Sketcher.Constraint("DistanceY", -1, 1, 0, 3, Q("28.963186 mm")),
])
pocket7 = body.newObject("PartDesign::Pocket", "Pocket006")
pocket7.Profile = sketch9
pocket7.Length = 4
pocket7.Reversed = True

# Sketch on XY plane
sketch10 = body.newObject("Sketcher::SketchObject", "Sketch009")
sketch10.AttachmentSupport = (doc.getObject("XY_Plane"), [""])
sketch10.MapMode = "FlatFace"
sketch10.AttachmentOffset = App.Placement(App.Vector(0, 0, 2), App.Rotation())
sketch10.addGeometry([
    Part.Circle(App.Vector(-7.496403, 28.963186, 0), App.Vector(0, 0, 1), 3),
    Part.Circle(App.Vector(23.503158, -2.036376, 0), App.Vector(0, 0, 1), 3),
    Part.Circle(App.Vector(-7.496403, -2.036376, 0), App.Vector(0, 0, 1), 3),
    Part.Circle(App.Vector(23.503158, 28.963186, 0), App.Vector(0, 0, 1), 3),
], False)
sketch10.addConstraint([
    Sketcher.Constraint("Equal", 0, 1),
    Sketcher.Constraint("Equal", 1, 2),
    Sketcher.Constraint("Equal", 2, 3),
    Sketcher.Constraint("Horizontal", 1, 3, 2, 3),
    Sketcher.Constraint("Horizontal", 0, 3, 3, 3),
    Sketcher.Constraint("Vertical", 0, 3, 2, 3),
    Sketcher.Constraint("Vertical", 1, 3, 3, 3),
    Sketcher.Constraint("Diameter", 0, Q("6 mm")),
    Sketcher.Constraint("DistanceX", -1, 1, 1, 3, Q("23.503158 mm")),
    Sketcher.Constraint("DistanceX", 0, 3, 1, 3, Q("30.999561 mm")),
    Sketcher.Constraint("DistanceY", 1, 3, 0, 3, Q("30.999561 mm")),
    Sketcher.Constraint("DistanceY", -1, 1, 0, 3, Q("28.963186 mm")),
])
pocket8 = body.newObject("PartDesign::Pocket", "Pocket007")
pocket8.Profile = sketch10
pocket8.Length = 4
pocket8.Reversed = True

# Sketch on XY plane
sketch11 = body.newObject("Sketcher::SketchObject", "Sketch010")
sketch11.AttachmentSupport = (doc.getObject("XY_Plane"), [""])
sketch11.MapMode = "FlatFace"
sketch11.AttachmentOffset = App.Placement(App.Vector(0, 0, 46), App.Rotation())
sketch11.addGeometry(Part.Circle(App.Vector(38.002754, -37.53549, 0), App.Vector(0, 0, 1), 4), False)
sketch11.addConstraint([
    Sketcher.Constraint("Diameter", 0, Q("8 mm")),
    Sketcher.Constraint("DistanceY", 0, 3, -1, 1, Q("37.53549 mm")),
    Sketcher.Constraint("DistanceX", -1, 1, 0, 3, Q("38.002754 mm")),
])
pocket9 = body.newObject("PartDesign::Pocket", "Pocket008")
pocket9.Profile = sketch11
pocket9.Length = 3
pocket9.Reversed = True

# Sketch on YZ plane
sketch12 = body.newObject("Sketcher::SketchObject", "Sketch011")
sketch12.AttachmentSupport = (doc.getObject("YZ_Plane"), [""])
sketch12.MapMode = "FlatFace"
sketch12.AttachmentOffset = App.Placement(App.Vector(0, 0, 30.491679), App.Rotation())
sketch12.addGeometry([
    Part.Circle(App.Vector(9.953931, 3, 0), App.Vector(0, 0, 1), 1.5),
    Part.Circle(App.Vector(-0.046069, 3, 0), App.Vector(0, 0, 1), 1.5),
    Part.Circle(App.Vector(9.953931, 49, 0), App.Vector(0, 0, 1), 1.5),
    Part.Circle(App.Vector(-0.046069, 49, 0), App.Vector(0, 0, 1), 1.5),
], False)
sketch12.addConstraint([
    Sketcher.Constraint("Equal", 0, 1),
    Sketcher.Constraint("Equal", 1, 2),
    Sketcher.Constraint("Equal", 2, 3),
    Sketcher.Constraint("Horizontal", 0, 3, 1, 3),
    Sketcher.Constraint("Horizontal", 2, 3, 3, 3),
    Sketcher.Constraint("Vertical", 0, 3, 2, 3),
    Sketcher.Constraint("Vertical", 1, 3, 3, 3),
    Sketcher.Constraint("Diameter", 0, Q("3 mm")),
    Sketcher.Constraint("DistanceY", -1, 1, 0, 3, Q("3 mm")),
    Sketcher.Constraint("DistanceY", -1, 1, 2, 3, Q("49 mm")),
    Sketcher.Constraint("DistanceX", 1, 3, 0, 3, Q("10 mm")),
    Sketcher.Constraint("DistanceX", -1, 1, 0, 3, Q("9.953931 mm")),
])
pocket10 = body.newObject("PartDesign::Pocket", "Pocket009")
pocket10.Profile = sketch12
pocket10.Length = 5

# Sketch on YZ plane
sketch13 = body.newObject("Sketcher::SketchObject", "Sketch012")
sketch13.AttachmentSupport = (doc.getObject("YZ_Plane"), [""])
sketch13.MapMode = "FlatFace"
sketch13.AttachmentOffset = App.Placement(App.Vector(0, 0, -12.996623), App.Rotation())
sketch13.addGeometry([
    Part.Circle(App.Vector(13.963048, 49, 0), App.Vector(0, 0, 1), 1.6),
    Part.Circle(App.Vector(3.963048, 49, 0), App.Vector(0, 0, 1), 1.6),
    Part.Circle(App.Vector(13.963048, 3, 0), App.Vector(0, 0, 1), 1.6),
    Part.Circle(App.Vector(3.963048, 3, 0), App.Vector(0, 0, 1), 1.6),
], False)
sketch13.addConstraint([
    Sketcher.Constraint("Equal", 0, 1),
    Sketcher.Constraint("Equal", 1, 2),
    Sketcher.Constraint("Equal", 2, 3),
    Sketcher.Constraint("Horizontal", 0, 3, 1, 3),
    Sketcher.Constraint("Horizontal", 2, 3, 3, 3),
    Sketcher.Constraint("Vertical", 0, 3, 2, 3),
    Sketcher.Constraint("Vertical", 1, 3, 3, 3),
    Sketcher.Constraint("Diameter", 0, Q("3.2 mm")),
    Sketcher.Constraint("DistanceY", -1, 1, 0, 3, Q("49 mm")),
    Sketcher.Constraint("DistanceY", -1, 1, 2, 3, Q("3 mm")),
    Sketcher.Constraint("DistanceX", 1, 3, 0, 3, Q("10 mm")),
    Sketcher.Constraint("DistanceX", -1, 1, 0, 3, Q("13.963048 mm")),
])
pocket11 = body.newObject("PartDesign::Pocket", "Pocket010")
pocket11.Profile = sketch13
pocket11.Length = 4
pocket11.Reversed = True

# Sketch on XY plane
sketch14 = body.newObject("Sketcher::SketchObject", "Sketch013")
sketch14.AttachmentSupport = (doc.getObject("XY_Plane"), [""])
sketch14.MapMode = "FlatFace"
sketch14.AttachmentOffset = App.Placement(App.Vector(0, 0, 6), App.Rotation())
add_polygon(sketch14, [(-25.99698, 38.463405), (-28.27646, 32.970357), (-19.10271, 28.692571), (-16.496801, 32.463226), (-20.99698, 38.463405)])  # lines 0-4
sketch14.addConstraint([
    Sketcher.Constraint("Horizontal", 4),
    Sketcher.Constraint("DistanceX", 4, 2, 4, 1, Q("5 mm")),
    Sketcher.Constraint("Angle", 1, Q("-24.999982 deg")),
    Sketcher.Constraint("DistanceX", 2, 2, -1, 1, Q("16.496801 mm")),
    Sketcher.Constraint("Distance", 1, Q("10.122111 mm")),
    Sketcher.Constraint("Distance", 3, Q("7.50025 mm")),
    Sketcher.Constraint("DistanceX", 0, 2, -1, 1, Q("28.27646 mm")),
    Sketcher.Constraint("DistanceY", -1, 1, 1, 2, Q("28.692571 mm")),
    Sketcher.Constraint("DistanceX", 3, 2, -1, 1, Q("20.99698 mm")),
    Sketcher.Constraint("DistanceY", 2, 2, 0, 2, Q("0.507131 mm")),
])
pocket12 = body.newObject("PartDesign::Pocket", "Pocket011")
pocket12.Profile = sketch14
pocket12.Length = 40
pocket12.Reversed = True

doc.recompute()
